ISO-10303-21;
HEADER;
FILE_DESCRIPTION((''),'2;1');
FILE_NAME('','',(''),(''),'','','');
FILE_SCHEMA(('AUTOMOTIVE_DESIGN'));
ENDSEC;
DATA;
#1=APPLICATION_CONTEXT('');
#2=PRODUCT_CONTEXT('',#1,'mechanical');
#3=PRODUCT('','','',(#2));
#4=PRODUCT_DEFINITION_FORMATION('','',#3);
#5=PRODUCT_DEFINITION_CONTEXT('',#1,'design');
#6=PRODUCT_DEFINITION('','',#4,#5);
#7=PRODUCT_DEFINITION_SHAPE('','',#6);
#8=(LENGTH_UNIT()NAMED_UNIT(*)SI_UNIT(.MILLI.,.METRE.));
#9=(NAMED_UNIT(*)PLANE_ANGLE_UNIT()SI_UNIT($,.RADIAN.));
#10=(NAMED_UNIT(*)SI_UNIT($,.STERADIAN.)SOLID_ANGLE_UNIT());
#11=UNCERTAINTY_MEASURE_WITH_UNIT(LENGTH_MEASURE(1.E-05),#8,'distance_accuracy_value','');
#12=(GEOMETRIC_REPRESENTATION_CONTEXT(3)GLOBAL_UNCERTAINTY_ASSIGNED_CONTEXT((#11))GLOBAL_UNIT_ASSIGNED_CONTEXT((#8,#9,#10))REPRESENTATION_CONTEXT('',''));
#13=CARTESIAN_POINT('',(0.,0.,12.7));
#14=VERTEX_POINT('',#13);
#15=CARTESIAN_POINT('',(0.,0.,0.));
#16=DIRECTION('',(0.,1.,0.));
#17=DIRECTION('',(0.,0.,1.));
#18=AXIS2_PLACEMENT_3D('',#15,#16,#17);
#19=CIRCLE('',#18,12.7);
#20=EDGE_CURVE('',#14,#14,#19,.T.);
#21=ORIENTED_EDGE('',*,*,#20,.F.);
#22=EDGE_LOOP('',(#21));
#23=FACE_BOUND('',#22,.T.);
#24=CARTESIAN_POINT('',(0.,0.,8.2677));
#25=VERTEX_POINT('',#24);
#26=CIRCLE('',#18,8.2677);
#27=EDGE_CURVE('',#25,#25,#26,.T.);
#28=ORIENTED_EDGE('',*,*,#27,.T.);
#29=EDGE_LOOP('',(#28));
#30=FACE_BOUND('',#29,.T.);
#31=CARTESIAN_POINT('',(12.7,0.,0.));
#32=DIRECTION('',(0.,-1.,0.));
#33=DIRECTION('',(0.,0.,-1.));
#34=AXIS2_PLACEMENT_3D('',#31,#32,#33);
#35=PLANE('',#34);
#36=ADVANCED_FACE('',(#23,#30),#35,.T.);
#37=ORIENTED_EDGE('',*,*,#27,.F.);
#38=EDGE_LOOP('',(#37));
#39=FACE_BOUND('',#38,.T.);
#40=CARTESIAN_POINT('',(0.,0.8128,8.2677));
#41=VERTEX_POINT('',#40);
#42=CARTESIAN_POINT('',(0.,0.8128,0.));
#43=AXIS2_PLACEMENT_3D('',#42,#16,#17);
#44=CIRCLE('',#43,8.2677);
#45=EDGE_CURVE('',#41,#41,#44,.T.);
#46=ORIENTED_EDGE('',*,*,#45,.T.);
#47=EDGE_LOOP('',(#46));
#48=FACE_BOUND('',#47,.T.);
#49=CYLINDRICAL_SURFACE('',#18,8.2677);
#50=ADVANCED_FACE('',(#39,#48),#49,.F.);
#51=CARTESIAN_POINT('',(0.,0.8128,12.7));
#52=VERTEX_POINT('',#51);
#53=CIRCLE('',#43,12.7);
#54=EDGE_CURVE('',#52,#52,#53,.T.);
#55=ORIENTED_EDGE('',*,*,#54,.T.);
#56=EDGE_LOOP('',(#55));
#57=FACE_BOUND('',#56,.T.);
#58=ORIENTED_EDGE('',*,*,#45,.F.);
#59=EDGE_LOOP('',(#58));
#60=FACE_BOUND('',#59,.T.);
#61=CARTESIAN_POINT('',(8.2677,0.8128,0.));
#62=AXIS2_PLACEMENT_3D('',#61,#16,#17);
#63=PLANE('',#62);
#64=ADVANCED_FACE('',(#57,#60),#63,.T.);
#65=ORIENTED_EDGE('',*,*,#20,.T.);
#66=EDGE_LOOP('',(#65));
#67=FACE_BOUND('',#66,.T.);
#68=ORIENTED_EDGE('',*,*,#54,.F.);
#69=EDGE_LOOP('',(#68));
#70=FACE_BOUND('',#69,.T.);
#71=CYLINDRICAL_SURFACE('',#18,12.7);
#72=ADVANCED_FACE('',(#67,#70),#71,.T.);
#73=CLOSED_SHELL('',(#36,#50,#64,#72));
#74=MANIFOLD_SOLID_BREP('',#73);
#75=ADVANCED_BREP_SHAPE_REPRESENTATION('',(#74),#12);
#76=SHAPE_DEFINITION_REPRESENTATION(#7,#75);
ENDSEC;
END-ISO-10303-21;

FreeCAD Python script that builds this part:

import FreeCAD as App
import Part
import Sketcher
Q = App.Units.Quantity

doc = App.newDocument("Part")
body = doc.addObject("PartDesign::Body", "Body")

# Sketch on XY plane
sketch1 = body.newObject("Sketcher::SketchObject", "Sketch")
sketch1.AttachmentSupport = (doc.getObject("XY_Plane"), [""])
sketch1.MapMode = "FlatFace"
sketch1.addGeometry([
    Part.LineSegment(App.Vector(12.7, 0.8, 0), App.Vector(12.7, 0, 0)),
    Part.LineSegment(App.Vector(12.7, 0, 0), App.Vector(8.3, 0, 0)),
    Part.LineSegment(App.Vector(8.3, 0, 0), App.Vector(8.3, 0.8, 0)),
    Part.LineSegment(App.Vector(8.3, 0.8, 0), App.Vector(12.7, 0.8, 0)),
], False)
sketch1.addConstraint([
    Sketcher.Constraint("Coincident", 0, 2, 1, 1),
    Sketcher.Constraint("Coincident", 1, 2, 2, 1),
    Sketcher.Constraint("Coincident", 2, 2, 3, 1),
    Sketcher.Constraint("Coincident", 3, 2, 0, 1),
    Sketcher.Constraint("Vertical", 0),
    Sketcher.Constraint("Horizontal", 1),
    Sketcher.Constraint("Vertical", 2),
    Sketcher.Constraint("Horizontal", 3),
    Sketcher.Constraint("PointOnObject", 0, 2, -1),
    Sketcher.Constraint("DistanceX", -1, 1, 0, 2, Q("0.5 in")),
    Sketcher.Constraint("DistanceY", 0, 2, 0, 1, Q("0.032 in")),
    Sketcher.Constraint("DistanceX", 1, 2, 1, 1, Q("0.1745 in")),
])
revolution = body.newObject("PartDesign::Revolution", "Revolution")
revolution.Profile = sketch1
revolution.ReferenceAxis = (sketch1, ["V_Axis"])
revolution.Angle = 360

doc.recompute()
